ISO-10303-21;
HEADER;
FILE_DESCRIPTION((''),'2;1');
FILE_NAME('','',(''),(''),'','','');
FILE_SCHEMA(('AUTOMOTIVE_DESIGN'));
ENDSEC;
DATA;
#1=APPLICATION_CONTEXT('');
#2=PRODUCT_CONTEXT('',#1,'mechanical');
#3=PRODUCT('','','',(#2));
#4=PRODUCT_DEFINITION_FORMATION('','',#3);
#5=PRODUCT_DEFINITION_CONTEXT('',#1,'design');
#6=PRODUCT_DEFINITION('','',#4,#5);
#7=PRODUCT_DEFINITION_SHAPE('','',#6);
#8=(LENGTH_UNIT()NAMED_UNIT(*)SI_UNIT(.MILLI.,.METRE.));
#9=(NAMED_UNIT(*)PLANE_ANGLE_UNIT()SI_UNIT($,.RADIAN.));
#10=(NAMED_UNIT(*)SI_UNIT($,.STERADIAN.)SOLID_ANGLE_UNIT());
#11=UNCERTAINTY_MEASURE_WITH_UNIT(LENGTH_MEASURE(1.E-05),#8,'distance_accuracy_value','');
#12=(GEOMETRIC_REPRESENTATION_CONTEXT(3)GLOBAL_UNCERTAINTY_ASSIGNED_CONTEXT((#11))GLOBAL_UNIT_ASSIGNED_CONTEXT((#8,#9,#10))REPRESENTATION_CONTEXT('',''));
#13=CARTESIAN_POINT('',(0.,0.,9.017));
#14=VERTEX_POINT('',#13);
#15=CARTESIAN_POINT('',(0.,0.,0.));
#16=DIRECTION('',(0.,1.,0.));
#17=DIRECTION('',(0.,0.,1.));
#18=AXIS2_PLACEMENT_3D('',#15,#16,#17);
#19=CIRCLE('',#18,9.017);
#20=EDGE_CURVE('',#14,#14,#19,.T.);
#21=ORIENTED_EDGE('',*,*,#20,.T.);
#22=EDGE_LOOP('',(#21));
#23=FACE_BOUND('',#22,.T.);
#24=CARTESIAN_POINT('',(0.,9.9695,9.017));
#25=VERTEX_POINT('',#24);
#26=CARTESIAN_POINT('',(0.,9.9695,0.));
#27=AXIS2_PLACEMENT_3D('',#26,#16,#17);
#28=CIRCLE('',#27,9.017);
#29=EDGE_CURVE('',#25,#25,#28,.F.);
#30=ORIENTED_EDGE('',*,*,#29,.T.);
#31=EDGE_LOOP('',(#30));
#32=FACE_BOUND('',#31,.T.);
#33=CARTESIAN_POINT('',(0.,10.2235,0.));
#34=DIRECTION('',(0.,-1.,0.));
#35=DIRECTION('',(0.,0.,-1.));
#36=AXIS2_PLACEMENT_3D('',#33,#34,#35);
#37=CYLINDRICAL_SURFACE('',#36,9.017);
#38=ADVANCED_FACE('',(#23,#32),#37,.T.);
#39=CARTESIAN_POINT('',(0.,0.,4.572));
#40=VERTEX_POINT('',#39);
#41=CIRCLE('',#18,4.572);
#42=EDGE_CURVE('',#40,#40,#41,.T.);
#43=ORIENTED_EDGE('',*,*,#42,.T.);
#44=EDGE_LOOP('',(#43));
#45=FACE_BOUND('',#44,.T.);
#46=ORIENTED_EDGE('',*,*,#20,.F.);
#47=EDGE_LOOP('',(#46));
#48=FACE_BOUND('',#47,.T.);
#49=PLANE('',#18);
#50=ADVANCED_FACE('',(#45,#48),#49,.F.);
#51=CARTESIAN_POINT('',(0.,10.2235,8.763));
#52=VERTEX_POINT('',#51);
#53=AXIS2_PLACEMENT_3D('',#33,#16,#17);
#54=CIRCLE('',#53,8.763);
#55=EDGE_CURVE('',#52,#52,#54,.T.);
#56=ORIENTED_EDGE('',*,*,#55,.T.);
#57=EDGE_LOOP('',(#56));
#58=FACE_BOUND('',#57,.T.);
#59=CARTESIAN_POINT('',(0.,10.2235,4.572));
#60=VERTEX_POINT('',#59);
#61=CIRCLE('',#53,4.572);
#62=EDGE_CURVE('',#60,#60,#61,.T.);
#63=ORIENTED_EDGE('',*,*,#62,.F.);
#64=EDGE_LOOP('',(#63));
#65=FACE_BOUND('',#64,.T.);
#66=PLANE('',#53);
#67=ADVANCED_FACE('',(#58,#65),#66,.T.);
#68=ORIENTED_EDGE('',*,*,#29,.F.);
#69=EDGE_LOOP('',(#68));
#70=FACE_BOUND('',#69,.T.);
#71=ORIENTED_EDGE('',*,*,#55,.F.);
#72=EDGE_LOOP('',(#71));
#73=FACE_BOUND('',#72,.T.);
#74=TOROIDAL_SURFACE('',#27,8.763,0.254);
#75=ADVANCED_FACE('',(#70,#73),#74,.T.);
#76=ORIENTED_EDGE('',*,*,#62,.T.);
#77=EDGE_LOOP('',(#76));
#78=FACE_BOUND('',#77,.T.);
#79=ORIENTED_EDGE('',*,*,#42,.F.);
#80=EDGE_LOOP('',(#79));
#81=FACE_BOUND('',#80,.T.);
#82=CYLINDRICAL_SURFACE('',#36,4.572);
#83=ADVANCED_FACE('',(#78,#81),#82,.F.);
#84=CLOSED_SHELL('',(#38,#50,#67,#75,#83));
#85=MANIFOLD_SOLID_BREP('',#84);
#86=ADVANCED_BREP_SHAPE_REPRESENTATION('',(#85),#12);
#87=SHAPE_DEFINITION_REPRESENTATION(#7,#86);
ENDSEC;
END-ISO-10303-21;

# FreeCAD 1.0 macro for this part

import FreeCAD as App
import Part
import Sketcher

V = App.Vector
Q = App.Units.Quantity


def edges_at(feature, points):
    """Names of the edges that pass closest to the given points."""
    edges = feature.Shape.Edges
    near = lambda p: min(range(len(edges)), key=lambda i: edges[i].distToShape(Part.Vertex(*p))[0])
    return sorted({f"Edge{near(p) + 1}" for p in points})

doc = App.newDocument("Part")
body = doc.addObject("PartDesign::Body", "Body")

# Sketch on XZ plane
sketch1 = body.newObject("Sketcher::SketchObject", "Sketch")
sketch1.AttachmentSupport = (doc.getObject("XZ_Plane"), [""])
sketch1.MapMode = "FlatFace"
sketch1.addGeometry(Part.Circle(V(0, 0, 0), V(0, 0, 1), 9.017), False)
sketch1.addGeometry(Part.Circle(V(0, 0, 0), V(0, 0, 1), 4.572), False)
sketch1.addConstraint(Sketcher.Constraint("Coincident", 0, 3, -1, 1))
sketch1.addConstraint(Sketcher.Constraint("Coincident", 1, 3, -1, 1))
sketch1.addConstraint(Sketcher.Constraint("Diameter", 0, Q("0.71 in")))
sketch1.addConstraint(Sketcher.Constraint("Diameter", 1, Q("0.36 in")))
pad1 = body.newObject("PartDesign::Pad", "Pad")
pad1.Profile = sketch1
pad1.Length = Q("0.4025 in")
pad1.Reversed = True
doc.recompute()

fillet = body.newObject("PartDesign::Fillet", "Fillet")
fillet.Base = (pad1, edges_at(pad1, [(0, 10.223, -9.017)]))
fillet.Radius = Q("0.01 in")

doc.recompute()
